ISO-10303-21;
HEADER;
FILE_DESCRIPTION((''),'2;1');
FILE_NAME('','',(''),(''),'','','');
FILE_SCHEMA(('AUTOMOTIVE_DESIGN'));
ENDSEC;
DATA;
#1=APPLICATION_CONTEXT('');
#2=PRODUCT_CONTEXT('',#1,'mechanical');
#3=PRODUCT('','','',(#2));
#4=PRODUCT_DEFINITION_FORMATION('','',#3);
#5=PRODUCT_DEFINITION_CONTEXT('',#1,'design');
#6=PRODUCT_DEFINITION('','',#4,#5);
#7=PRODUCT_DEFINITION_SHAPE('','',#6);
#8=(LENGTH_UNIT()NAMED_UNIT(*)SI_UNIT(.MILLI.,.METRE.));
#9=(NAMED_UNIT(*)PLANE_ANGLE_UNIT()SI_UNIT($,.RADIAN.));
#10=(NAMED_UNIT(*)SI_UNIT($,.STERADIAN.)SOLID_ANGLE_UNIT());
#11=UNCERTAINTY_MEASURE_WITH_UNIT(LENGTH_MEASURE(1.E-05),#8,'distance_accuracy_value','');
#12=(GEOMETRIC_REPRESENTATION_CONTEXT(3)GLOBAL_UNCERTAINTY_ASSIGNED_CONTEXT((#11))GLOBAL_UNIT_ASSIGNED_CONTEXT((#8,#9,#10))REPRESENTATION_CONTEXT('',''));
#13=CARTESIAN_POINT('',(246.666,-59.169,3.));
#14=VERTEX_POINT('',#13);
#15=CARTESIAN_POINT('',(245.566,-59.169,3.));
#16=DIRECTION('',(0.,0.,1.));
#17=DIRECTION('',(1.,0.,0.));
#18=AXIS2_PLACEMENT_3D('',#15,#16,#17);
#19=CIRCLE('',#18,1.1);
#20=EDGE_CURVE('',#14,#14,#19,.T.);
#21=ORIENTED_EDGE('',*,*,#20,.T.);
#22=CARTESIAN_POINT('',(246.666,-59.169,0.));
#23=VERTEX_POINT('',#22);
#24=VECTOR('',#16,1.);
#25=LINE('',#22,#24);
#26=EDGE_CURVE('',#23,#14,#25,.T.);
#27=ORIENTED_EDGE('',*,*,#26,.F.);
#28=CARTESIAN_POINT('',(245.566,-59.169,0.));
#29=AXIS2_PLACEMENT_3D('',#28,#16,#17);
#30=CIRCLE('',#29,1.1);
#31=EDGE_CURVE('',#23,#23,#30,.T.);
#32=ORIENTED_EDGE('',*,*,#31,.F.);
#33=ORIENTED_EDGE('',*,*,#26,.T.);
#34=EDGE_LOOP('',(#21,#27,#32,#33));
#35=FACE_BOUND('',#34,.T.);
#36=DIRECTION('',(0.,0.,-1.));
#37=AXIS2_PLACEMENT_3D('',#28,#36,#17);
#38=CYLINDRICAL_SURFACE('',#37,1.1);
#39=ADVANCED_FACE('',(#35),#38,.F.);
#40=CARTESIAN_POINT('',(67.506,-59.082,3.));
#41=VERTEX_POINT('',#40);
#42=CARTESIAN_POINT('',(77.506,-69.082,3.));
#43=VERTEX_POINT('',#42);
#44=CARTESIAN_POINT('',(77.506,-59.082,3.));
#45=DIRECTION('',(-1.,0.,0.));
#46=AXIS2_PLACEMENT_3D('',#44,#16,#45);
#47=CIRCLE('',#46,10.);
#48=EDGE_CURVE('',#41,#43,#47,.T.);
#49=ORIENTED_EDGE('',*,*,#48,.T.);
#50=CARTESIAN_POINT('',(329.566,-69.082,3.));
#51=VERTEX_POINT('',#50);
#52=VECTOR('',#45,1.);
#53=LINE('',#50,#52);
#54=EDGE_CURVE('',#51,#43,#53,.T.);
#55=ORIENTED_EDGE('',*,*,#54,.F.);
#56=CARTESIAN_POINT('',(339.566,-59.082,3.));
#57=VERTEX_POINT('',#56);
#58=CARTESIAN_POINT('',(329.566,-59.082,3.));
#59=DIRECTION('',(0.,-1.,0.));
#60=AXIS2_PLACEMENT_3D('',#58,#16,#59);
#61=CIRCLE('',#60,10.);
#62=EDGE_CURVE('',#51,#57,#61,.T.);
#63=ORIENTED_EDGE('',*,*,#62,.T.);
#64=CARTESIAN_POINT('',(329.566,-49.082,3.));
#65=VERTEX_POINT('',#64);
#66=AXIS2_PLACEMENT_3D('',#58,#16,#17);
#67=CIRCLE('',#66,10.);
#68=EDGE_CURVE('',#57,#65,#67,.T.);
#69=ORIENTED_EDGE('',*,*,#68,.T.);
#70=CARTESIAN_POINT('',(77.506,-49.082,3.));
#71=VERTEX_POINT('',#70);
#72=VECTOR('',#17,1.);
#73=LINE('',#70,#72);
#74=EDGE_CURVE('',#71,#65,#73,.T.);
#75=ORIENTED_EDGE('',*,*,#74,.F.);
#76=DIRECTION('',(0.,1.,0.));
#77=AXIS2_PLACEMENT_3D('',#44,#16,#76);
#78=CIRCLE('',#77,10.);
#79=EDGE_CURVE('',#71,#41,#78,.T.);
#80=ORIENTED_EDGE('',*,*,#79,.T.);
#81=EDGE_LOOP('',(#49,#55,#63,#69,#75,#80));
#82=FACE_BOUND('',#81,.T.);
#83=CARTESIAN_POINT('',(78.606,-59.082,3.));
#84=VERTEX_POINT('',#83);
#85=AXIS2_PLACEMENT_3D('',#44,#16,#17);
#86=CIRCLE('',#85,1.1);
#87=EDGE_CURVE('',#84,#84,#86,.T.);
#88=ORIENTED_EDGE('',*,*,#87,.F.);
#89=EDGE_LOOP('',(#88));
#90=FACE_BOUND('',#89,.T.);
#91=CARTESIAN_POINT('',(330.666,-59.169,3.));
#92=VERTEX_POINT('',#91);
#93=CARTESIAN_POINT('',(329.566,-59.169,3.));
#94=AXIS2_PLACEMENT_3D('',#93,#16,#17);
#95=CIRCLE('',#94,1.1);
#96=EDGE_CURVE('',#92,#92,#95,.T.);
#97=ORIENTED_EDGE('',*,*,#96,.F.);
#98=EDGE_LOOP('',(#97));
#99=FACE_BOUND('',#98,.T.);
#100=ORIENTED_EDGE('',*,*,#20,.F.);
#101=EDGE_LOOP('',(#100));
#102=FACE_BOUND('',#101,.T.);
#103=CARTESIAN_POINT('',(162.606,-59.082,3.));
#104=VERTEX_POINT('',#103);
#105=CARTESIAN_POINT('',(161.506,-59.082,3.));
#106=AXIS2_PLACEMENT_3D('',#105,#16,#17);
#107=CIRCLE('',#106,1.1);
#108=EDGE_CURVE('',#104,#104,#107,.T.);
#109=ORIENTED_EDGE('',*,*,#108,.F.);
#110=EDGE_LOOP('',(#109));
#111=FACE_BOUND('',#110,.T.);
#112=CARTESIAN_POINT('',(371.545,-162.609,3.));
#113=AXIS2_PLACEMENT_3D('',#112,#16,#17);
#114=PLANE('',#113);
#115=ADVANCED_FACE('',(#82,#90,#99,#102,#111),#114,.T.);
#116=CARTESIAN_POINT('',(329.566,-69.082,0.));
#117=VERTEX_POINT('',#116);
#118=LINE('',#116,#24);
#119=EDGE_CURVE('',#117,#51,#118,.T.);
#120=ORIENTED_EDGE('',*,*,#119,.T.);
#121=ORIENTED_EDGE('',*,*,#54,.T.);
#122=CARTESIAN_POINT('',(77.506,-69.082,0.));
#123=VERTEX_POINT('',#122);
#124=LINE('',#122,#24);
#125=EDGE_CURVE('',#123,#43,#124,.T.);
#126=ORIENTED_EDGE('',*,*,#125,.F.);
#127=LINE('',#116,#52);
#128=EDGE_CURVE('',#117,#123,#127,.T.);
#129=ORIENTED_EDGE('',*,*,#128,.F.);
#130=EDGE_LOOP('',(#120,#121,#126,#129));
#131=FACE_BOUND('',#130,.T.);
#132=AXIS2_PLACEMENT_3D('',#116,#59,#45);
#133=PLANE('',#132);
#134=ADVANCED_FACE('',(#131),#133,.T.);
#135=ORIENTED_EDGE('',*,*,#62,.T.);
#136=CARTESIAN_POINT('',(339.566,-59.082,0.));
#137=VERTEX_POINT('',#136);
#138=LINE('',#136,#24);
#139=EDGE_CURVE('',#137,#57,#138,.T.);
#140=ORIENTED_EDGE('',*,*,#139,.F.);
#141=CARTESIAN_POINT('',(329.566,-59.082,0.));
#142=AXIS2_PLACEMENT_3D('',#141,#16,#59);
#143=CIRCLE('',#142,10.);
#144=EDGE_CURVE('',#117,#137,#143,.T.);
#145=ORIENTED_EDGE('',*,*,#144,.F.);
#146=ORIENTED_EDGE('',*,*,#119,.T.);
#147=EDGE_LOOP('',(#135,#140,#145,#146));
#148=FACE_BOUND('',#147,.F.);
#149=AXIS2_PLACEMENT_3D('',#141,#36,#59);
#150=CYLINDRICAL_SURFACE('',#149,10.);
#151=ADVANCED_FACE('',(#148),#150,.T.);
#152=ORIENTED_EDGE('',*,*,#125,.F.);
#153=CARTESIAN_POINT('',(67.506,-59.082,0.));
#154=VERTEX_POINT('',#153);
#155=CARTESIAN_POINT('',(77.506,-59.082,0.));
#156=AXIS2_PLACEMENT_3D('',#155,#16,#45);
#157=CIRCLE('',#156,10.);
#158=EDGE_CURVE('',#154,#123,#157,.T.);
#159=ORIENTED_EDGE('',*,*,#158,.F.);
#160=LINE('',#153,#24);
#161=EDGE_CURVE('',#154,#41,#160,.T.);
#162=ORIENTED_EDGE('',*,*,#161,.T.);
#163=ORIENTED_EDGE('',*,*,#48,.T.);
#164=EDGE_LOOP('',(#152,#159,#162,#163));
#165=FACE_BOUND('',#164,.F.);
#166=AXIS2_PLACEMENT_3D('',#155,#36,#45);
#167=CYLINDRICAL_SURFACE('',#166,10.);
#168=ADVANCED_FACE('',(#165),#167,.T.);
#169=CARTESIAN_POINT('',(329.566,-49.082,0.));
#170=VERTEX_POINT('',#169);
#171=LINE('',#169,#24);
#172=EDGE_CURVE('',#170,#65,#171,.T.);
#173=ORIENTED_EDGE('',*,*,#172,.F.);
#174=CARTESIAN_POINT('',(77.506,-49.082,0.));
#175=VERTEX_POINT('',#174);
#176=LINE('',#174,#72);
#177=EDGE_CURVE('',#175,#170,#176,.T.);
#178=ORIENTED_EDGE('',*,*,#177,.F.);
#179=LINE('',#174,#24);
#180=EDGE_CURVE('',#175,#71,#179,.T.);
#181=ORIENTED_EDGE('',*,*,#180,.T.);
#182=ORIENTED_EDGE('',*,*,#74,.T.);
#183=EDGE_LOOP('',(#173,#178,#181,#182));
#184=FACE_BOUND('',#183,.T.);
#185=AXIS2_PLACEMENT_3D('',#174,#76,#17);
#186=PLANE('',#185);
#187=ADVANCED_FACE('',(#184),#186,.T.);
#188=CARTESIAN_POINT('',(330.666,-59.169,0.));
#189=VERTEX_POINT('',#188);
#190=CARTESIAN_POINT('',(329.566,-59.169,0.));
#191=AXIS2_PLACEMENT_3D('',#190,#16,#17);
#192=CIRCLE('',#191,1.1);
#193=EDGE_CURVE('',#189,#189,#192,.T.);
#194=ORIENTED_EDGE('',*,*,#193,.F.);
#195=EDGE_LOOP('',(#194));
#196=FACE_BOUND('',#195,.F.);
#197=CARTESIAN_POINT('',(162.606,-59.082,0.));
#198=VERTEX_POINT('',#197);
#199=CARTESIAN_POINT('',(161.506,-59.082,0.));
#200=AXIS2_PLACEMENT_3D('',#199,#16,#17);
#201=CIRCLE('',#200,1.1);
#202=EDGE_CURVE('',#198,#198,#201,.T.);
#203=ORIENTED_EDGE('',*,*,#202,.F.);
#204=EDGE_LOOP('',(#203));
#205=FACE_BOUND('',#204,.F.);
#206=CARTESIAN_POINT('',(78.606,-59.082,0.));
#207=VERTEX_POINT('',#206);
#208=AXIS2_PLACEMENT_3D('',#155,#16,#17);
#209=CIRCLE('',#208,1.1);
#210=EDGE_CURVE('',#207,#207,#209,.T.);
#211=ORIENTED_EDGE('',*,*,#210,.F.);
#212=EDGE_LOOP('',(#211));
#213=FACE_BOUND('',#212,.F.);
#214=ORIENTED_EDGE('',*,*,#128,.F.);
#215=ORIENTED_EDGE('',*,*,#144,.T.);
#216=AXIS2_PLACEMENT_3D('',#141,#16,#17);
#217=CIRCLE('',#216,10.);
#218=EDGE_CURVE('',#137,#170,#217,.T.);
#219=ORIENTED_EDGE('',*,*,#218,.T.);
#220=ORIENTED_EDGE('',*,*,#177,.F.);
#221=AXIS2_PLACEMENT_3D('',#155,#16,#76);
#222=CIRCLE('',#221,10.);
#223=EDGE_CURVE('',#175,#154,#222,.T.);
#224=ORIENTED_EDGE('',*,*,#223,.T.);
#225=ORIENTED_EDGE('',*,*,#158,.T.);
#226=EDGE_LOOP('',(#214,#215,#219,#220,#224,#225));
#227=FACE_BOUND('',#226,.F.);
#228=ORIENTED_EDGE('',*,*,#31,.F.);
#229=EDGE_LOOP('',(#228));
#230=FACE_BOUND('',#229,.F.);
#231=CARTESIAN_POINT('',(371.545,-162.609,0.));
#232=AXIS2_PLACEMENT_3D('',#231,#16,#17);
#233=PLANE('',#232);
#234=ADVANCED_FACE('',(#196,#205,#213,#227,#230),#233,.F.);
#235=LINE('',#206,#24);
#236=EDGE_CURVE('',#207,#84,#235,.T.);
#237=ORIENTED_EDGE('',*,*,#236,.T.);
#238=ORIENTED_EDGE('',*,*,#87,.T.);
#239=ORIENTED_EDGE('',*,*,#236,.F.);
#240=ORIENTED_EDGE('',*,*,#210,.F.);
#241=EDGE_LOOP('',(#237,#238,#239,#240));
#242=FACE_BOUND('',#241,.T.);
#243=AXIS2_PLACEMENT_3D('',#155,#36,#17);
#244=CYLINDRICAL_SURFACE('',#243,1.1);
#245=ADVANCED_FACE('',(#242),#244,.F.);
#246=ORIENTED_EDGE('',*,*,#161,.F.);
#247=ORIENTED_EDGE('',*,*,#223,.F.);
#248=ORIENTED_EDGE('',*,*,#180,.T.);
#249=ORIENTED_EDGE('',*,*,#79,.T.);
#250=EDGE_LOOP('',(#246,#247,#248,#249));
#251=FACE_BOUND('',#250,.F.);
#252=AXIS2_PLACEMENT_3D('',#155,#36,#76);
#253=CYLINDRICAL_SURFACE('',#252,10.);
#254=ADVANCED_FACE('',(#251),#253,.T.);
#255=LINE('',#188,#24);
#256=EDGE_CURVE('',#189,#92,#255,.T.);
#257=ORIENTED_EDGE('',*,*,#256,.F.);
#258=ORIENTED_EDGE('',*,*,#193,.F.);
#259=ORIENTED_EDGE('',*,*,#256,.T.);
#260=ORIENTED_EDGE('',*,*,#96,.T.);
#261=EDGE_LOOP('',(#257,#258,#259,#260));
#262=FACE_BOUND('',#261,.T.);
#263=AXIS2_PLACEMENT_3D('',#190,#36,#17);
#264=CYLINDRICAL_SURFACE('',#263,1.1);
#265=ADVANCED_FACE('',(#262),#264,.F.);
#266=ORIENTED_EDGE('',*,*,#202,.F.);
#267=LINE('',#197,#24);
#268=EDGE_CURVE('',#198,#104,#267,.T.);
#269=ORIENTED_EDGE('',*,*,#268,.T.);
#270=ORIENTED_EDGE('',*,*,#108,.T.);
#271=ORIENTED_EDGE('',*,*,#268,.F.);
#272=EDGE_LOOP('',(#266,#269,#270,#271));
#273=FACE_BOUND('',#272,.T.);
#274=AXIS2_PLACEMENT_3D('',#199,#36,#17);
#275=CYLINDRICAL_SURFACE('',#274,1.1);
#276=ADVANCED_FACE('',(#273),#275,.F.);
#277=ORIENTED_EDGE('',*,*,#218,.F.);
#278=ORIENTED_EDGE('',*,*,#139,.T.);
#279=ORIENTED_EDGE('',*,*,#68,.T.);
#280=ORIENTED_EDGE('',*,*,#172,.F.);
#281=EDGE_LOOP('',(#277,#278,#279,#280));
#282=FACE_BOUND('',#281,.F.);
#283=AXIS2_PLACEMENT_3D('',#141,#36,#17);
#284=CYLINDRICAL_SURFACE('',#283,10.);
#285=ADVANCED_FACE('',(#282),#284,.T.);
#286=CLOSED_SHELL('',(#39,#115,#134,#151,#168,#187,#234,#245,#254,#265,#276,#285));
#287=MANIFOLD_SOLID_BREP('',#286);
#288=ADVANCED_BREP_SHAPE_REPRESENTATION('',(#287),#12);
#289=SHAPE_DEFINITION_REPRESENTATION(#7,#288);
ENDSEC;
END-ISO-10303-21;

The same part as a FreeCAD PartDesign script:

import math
import FreeCAD as App
import Part
import Sketcher
Q = App.Units.Quantity

doc = App.newDocument("Part")
params = doc.addObject("Spreadsheet::Sheet", "Params")
for row, (alias, value) in enumerate([
    ("sketch1_radius", "10 mm"),
    ("sketch1_diameter", "2.2 mm"),
    ("sketch1_width", "252.06 mm"),
    ("pad1_length", "3 mm"),
], start=1):
    params.set(f"A{row}", alias)
    params.set(f"B{row}", "=" + value)
    params.setAlias(f"B{row}", alias)

body = doc.addObject("PartDesign::Body", "Body")

# Sketch on XY plane
sketch1 = doc.addObject("Sketcher::SketchObject", "Sketch")
body.addObject(sketch1)
sketch1.AttachmentSupport = (doc.XY_Plane, [""])
sketch1.MapMode = "FlatFace"
sketch1.addGeometry(Part.LineSegment(App.Vector(329.566, -49.082, 0), App.Vector(77.506, -49.082, 0)), False)
sketch1.addGeometry(Part.ArcOfCircle(Part.Circle(App.Vector(77.506, -59.082, 0), App.Vector(0, 0, 1), 10), math.radians(90), math.radians(270)), False)
sketch1.addGeometry(Part.LineSegment(App.Vector(77.506, -69.082, 0), App.Vector(329.566, -69.082, 0)), False)
sketch1.addGeometry(Part.ArcOfCircle(Part.Circle(App.Vector(329.566, -59.082, 0), App.Vector(0, 0, 1), 10), math.radians(-90), math.radians(90)), False)
sketch1.addGeometry(Part.Circle(App.Vector(245.566, -59.169, 0), App.Vector(0, 0, 1), 1.1), False)
sketch1.addGeometry(Part.Circle(App.Vector(329.566, -59.169, 0), App.Vector(0, 0, 1), 1.1), False)
sketch1.addGeometry(Part.Circle(App.Vector(77.506, -59.082, 0), App.Vector(0, 0, 1), 1.1), False)
sketch1.addGeometry(Part.Circle(App.Vector(161.506, -59.082, 0), App.Vector(0, 0, 1), 1.1), False)
sketch1.addConstraint(Sketcher.Constraint("Tangent", 0, 2, 1, 1))
sketch1.addConstraint(Sketcher.Constraint("Tangent", 1, 2, 2, 1))
sketch1.addConstraint(Sketcher.Constraint("Tangent", 2, 2, 3, 1))
sketch1.addConstraint(Sketcher.Constraint("Tangent", 3, 2, 0, 1))
sketch1.addConstraint(Sketcher.Constraint("Horizontal", 0))
sketch1.addConstraint(Sketcher.Constraint("Horizontal", 2))
sketch1.addConstraint(Sketcher.Constraint("Coincident", 6, 3, 1, 3))
sketch1.addConstraint(Sketcher.Constraint("Equal", 4, 5))
sketch1.addConstraint(Sketcher.Constraint("Equal", 5, 6))
sketch1.addConstraint(Sketcher.Constraint("Equal", 6, 7))
sketch1.addConstraint(Sketcher.Constraint("Horizontal", 4, 3, 5, 3))
sketch1.addConstraint(Sketcher.Constraint("Horizontal", 6, 3, 7, 3))
sketch1.addConstraint(Sketcher.Constraint("Vertical", 3, 3, 5, 3))
sketch1.addConstraint(Sketcher.Constraint("Radius", 1, Q("10 mm")))
sketch1.addConstraint(Sketcher.Constraint("Diameter", 4, Q("2.2 mm")))
sketch1.addConstraint(Sketcher.Constraint("DistanceX", 4, 3, 3, 3, Q("84 mm")))
sketch1.addConstraint(Sketcher.Constraint("DistanceX", 1, 3, 7, 3, Q("84 mm")))
sketch1.addConstraint(Sketcher.Constraint("DistanceX", 0, 2, 0, 1, Q("252.06 mm")))
sketch1.addConstraint(Sketcher.Constraint("DistanceX", -1, 1, 1, 3, Q("77.506 mm")))
sketch1.addConstraint(Sketcher.Constraint("DistanceY", 1, 3, -1, 1, Q("59.082 mm")))
sketch1.addConstraint(Sketcher.Constraint("DistanceY", 4, 3, -1, 1, Q("59.169 mm")))
sketch1.setExpression("Constraints[13]", "Params.sketch1_radius")
sketch1.setExpression("Constraints[14]", "Params.sketch1_diameter")
sketch1.setExpression("Constraints[17]", "Params.sketch1_width")
pad1 = doc.addObject("PartDesign::Pad", "Pad")
body.addObject(pad1)
pad1.Profile = sketch1
pad1.setExpression("Length", "Params.pad1_length")

doc.recompute()
